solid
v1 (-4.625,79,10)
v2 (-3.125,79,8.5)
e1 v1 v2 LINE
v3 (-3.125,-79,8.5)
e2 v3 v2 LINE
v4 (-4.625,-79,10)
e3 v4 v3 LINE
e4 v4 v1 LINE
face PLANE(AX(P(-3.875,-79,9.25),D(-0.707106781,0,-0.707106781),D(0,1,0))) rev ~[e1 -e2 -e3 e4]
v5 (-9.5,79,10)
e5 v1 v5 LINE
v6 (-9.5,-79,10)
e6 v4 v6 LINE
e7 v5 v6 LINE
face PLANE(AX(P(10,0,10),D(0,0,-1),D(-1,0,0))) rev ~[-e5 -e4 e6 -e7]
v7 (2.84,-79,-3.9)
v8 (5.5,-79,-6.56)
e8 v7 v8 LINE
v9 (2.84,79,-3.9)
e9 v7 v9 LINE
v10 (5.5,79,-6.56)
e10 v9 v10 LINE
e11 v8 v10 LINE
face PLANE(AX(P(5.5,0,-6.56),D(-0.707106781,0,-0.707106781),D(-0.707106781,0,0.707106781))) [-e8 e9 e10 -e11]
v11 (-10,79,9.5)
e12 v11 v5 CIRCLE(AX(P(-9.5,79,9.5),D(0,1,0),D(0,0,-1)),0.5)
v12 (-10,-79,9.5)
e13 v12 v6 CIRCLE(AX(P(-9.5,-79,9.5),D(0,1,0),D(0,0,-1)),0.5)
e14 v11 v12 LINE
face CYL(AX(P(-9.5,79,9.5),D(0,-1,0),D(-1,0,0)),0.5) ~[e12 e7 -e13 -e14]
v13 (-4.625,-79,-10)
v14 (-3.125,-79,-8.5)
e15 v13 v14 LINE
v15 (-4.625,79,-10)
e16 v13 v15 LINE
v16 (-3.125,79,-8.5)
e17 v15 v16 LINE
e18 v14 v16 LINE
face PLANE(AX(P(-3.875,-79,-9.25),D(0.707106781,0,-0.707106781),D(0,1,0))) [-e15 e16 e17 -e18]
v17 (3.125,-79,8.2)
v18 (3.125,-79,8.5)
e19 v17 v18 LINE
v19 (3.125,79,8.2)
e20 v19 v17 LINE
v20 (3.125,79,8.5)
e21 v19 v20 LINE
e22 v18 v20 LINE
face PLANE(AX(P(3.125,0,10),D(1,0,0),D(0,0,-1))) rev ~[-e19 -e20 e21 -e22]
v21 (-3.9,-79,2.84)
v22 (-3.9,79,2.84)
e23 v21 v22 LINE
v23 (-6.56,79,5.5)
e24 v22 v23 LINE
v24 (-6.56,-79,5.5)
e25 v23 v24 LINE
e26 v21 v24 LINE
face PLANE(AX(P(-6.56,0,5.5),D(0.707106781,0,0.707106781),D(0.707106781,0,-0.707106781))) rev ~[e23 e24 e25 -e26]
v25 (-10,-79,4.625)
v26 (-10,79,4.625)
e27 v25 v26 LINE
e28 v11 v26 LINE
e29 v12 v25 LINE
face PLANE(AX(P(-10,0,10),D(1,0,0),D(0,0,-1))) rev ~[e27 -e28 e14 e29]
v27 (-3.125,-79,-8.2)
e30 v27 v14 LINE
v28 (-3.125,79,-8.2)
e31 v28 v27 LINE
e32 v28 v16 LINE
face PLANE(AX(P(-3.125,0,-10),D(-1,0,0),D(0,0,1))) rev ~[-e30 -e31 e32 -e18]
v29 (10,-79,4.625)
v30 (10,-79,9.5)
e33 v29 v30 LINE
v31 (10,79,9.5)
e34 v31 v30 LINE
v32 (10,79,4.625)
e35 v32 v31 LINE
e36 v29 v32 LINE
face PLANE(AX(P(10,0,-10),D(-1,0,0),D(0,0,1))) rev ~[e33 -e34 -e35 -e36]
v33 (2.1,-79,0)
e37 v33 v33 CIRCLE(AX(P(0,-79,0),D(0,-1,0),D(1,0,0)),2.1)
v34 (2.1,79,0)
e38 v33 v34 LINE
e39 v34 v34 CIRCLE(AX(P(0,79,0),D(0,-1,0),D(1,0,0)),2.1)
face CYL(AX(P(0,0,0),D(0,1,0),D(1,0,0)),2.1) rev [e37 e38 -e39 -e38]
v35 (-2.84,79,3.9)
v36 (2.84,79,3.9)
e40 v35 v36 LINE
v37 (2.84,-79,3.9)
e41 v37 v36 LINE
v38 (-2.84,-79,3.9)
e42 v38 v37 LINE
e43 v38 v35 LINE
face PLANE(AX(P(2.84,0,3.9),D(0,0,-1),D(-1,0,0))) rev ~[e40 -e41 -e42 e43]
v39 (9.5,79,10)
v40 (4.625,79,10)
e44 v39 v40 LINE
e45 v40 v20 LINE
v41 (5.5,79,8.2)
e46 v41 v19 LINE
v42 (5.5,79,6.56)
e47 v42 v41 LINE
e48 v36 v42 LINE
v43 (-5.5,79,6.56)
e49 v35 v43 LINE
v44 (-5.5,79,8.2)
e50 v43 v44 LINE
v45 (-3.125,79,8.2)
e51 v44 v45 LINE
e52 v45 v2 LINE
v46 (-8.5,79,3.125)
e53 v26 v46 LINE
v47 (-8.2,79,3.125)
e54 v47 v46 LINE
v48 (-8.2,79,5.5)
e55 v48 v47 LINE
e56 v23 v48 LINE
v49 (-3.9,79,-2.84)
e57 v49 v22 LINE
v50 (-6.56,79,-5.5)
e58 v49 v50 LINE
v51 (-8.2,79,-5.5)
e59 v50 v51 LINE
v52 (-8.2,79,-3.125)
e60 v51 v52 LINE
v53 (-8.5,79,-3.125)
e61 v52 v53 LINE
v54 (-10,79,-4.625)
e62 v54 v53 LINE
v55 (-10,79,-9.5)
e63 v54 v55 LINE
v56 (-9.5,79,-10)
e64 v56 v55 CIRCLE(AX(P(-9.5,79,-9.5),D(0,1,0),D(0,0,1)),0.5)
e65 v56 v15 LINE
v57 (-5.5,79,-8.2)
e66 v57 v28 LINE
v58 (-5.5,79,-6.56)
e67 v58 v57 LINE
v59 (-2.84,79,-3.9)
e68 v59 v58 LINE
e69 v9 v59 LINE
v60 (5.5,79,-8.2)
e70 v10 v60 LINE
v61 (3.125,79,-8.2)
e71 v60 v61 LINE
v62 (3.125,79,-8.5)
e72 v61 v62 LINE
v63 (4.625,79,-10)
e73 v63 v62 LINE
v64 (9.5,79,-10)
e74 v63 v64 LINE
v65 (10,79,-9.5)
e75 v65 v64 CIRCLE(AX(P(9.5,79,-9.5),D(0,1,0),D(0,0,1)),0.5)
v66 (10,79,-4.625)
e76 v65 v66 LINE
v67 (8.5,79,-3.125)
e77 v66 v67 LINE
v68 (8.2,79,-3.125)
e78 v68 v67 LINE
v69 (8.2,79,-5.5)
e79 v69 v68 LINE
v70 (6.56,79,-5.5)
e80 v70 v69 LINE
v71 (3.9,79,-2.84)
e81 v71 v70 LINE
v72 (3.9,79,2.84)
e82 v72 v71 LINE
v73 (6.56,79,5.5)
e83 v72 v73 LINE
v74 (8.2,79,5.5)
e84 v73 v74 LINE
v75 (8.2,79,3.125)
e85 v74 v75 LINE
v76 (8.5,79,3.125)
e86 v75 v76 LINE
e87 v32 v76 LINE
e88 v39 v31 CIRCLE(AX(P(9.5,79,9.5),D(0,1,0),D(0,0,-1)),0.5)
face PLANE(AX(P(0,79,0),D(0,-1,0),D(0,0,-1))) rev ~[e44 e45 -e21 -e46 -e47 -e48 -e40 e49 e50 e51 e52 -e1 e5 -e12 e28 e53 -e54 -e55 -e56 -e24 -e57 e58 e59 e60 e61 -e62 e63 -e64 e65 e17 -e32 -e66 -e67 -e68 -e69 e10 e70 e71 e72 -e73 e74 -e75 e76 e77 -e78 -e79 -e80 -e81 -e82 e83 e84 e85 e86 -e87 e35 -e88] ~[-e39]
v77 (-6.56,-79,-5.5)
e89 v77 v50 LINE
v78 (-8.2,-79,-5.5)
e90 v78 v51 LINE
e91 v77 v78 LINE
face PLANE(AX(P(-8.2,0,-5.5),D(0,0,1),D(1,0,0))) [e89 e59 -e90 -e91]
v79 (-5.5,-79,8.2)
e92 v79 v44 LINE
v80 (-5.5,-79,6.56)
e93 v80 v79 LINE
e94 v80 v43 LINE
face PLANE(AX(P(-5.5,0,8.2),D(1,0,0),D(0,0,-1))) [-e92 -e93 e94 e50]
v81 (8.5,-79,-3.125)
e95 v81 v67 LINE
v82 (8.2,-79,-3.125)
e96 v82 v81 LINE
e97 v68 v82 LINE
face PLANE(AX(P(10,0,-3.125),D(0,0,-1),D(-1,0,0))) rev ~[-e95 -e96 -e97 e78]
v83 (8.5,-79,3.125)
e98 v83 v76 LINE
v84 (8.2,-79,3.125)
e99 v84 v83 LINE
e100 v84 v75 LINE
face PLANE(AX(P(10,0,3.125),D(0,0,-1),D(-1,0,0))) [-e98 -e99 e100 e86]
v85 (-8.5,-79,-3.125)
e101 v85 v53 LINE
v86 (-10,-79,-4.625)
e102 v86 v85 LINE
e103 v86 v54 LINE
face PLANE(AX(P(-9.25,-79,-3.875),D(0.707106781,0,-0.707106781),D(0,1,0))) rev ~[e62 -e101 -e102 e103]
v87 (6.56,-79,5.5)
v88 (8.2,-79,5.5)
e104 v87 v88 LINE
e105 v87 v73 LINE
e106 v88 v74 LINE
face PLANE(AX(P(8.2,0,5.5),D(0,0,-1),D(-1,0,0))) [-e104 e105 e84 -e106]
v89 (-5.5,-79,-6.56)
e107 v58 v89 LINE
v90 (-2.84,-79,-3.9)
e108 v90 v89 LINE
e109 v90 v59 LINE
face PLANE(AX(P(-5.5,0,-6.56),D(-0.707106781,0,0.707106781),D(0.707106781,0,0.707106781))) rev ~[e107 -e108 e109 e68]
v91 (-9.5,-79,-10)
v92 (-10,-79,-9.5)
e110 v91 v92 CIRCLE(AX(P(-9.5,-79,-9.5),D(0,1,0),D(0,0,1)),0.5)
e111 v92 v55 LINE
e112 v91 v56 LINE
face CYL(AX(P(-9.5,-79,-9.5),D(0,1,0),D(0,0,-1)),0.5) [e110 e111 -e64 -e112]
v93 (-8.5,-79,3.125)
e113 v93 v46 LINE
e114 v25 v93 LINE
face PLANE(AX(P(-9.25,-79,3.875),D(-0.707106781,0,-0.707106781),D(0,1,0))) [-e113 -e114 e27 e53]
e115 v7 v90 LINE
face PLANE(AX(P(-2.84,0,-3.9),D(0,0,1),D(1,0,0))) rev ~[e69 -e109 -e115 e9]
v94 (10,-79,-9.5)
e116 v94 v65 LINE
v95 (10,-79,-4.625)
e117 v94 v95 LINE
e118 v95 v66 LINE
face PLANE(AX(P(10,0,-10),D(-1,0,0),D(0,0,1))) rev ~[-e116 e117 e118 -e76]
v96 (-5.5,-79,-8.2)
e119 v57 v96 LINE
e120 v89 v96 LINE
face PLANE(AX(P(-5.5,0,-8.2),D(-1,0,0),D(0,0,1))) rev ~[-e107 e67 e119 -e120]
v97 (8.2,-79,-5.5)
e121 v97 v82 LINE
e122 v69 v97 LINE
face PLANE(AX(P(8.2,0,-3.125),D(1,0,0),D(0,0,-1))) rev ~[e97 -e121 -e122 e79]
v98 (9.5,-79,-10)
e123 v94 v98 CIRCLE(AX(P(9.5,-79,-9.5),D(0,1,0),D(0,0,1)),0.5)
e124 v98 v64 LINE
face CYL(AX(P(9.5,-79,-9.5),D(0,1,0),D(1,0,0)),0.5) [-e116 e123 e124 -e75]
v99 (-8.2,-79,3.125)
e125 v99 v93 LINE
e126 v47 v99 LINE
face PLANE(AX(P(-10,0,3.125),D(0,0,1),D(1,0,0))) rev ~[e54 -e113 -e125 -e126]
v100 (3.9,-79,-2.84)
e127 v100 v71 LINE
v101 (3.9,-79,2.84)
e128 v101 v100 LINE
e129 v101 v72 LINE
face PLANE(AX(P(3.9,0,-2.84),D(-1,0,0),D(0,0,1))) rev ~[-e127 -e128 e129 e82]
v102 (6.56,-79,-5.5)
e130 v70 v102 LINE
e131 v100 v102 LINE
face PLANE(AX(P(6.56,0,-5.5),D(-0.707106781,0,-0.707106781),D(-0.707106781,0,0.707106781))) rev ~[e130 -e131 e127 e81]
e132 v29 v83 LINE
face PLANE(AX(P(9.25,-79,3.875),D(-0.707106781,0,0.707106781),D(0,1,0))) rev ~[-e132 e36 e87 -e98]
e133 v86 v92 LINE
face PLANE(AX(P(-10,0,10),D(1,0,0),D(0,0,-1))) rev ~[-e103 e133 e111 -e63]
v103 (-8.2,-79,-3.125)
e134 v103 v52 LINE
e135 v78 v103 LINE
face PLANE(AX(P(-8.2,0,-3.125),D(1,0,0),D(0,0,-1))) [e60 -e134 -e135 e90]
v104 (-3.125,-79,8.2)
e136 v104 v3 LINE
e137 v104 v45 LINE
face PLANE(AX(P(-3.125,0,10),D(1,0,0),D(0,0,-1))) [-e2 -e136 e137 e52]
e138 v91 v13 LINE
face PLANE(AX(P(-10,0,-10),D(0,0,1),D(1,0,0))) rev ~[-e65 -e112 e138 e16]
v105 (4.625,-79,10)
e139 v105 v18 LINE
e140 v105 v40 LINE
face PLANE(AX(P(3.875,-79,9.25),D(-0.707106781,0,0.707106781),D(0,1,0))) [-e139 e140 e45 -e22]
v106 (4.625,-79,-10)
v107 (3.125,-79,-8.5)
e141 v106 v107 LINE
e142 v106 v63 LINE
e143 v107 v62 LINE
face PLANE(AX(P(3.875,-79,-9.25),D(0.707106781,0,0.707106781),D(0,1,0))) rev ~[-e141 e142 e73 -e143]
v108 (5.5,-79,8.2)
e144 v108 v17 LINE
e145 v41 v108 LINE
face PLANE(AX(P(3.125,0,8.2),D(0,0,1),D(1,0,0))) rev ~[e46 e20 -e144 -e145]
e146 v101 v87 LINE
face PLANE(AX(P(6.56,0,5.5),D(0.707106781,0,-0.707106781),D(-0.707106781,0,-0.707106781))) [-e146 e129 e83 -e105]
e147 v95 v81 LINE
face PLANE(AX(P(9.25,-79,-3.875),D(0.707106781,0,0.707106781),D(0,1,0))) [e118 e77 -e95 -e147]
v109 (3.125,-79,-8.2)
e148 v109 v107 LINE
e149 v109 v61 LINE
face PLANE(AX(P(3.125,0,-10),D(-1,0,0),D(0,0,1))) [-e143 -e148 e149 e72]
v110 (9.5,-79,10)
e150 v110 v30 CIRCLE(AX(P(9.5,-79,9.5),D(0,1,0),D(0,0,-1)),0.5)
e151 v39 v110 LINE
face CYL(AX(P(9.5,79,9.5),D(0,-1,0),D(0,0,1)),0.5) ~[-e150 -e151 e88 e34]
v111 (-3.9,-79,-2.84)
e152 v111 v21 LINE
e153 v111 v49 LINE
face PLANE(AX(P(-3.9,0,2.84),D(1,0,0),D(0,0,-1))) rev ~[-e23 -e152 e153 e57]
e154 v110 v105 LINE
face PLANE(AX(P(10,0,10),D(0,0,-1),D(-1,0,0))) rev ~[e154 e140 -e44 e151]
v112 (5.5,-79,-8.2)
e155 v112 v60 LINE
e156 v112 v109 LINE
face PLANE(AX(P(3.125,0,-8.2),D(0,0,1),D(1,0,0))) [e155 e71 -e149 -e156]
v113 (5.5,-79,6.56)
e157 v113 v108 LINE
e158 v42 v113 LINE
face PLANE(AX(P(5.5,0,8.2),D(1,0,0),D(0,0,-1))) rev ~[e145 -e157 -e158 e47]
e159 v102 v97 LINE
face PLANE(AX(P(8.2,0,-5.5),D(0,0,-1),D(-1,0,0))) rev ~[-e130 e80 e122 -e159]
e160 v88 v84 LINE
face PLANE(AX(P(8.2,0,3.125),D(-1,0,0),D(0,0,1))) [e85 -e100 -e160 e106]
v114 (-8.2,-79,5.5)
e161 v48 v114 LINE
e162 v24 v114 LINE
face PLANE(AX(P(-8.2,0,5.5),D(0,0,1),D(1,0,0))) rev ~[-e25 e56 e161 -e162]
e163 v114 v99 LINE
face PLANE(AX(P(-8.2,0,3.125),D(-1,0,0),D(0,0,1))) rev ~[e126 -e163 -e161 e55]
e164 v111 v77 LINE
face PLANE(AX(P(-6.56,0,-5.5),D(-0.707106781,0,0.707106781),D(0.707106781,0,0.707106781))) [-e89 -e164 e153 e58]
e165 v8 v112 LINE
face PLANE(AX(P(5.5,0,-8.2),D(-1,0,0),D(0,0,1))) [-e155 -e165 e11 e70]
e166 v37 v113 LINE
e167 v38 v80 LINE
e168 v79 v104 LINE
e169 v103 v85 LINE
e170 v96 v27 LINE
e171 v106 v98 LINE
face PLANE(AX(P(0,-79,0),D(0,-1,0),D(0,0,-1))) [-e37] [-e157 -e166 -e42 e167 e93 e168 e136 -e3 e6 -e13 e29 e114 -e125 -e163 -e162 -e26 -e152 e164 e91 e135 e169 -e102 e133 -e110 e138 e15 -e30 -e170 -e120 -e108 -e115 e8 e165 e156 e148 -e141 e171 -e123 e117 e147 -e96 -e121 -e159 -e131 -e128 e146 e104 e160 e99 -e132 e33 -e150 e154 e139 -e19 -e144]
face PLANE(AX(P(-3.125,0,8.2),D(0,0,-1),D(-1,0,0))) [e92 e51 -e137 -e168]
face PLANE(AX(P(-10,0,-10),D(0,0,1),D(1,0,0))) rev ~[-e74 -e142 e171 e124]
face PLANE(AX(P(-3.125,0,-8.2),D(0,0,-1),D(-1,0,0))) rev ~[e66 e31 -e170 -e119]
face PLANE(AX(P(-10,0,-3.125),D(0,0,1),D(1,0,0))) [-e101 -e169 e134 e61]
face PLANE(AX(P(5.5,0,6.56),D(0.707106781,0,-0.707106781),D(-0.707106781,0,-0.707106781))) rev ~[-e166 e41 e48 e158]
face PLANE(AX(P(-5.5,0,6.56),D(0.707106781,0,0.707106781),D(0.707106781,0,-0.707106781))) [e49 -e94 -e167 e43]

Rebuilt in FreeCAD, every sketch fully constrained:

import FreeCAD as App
import Part
import Sketcher
from FreeCAD import Vector


def edges_at(feature, points):
    """Names of the edges that pass closest to the given points."""
    edges = feature.Shape.Edges
    near = lambda p: min(range(len(edges)), key=lambda i: edges[i].distToShape(Part.Vertex(*p))[0])
    return sorted({f"Edge{near(p) + 1}" for p in points})


def add_polygon(sketch, points):
    """Adds a closed chain of lines whose ends are joined by coincident constraints."""
    first, n = sketch.GeometryCount, len(points)
    for a, b in zip(points, points[1:] + points[:1]):
        sketch.addGeometry(Part.LineSegment(App.Vector(*a, 0), App.Vector(*b, 0)), False)
    for i in range(n):
        sketch.addConstraint(Sketcher.Constraint("Coincident", first + i, 2, first + (i + 1) % n, 1))

doc = App.newDocument("Part")
body = doc.addObject("PartDesign::Body", "Body")

# Sketch on XZ plane
sketch1 = doc.addObject("Sketcher::SketchObject", "Sketch")
body.addObject(sketch1)
sketch1.AttachmentSupport = (doc.XZ_Plane, [""])
sketch1.MapMode = "FlatFace"
add_polygon(sketch1, [(-10, -10), (10, -10), (10, 10), (-10, 10)])  # lines 0-3
sketch1.addGeometry(Part.Circle(Vector(0, 0, 0), Vector(0, 0, 1), 2.1), False)  # 4
sketch1.addConstraint(Sketcher.Constraint("Horizontal", 0))
sketch1.addConstraint(Sketcher.Constraint("Vertical", 1))
sketch1.addConstraint(Sketcher.Constraint("Horizontal", 2))
sketch1.addConstraint(Sketcher.Constraint("Vertical", 3))
sketch1.addConstraint(Sketcher.Constraint("Coincident", 4, 3, -1, 1))
sketch1.addConstraint(Sketcher.Constraint("Symmetric", 0, 2, 2, 2, -1, 1))
sketch1.addConstraint(Sketcher.Constraint("Equal", 2, 1))
sketch1.addConstraint(Sketcher.Constraint("Diameter", 4, 4.2))
sketch1.addConstraint(Sketcher.Constraint("DistanceX", 0, 1, 0, 2, 20.0))
pad1 = doc.addObject("PartDesign::Pad", "Pad")
body.addObject(pad1)
pad1.Profile = sketch1
pad1.Length = 158
pad1.Midplane = True

# Sketch on XZ plane
sketch2 = doc.addObject("Sketcher::SketchObject", "Sketch001")
body.addObject(sketch2)
sketch2.AttachmentSupport = (doc.XZ_Plane, [""])
sketch2.MapMode = "FlatFace"
add_polygon(sketch2, [(2.84, 3.9), (5.5, 6.56), (5.5, 8.2), (3.125, 8.2), (3.125, 10), (-3.125, 10), (-3.125, 8.2), (-5.5, 8.2), (-5.5, 6.56), (-2.84, 3.9)])  # lines 0-9
sketch2.addConstraint(Sketcher.Constraint("Vertical", 1))
sketch2.addConstraint(Sketcher.Constraint("Horizontal", 2))
sketch2.addConstraint(Sketcher.Constraint("Vertical", 3))
sketch2.addConstraint(Sketcher.Constraint("Horizontal", 4))
sketch2.addConstraint(Sketcher.Constraint("Vertical", 5))
sketch2.addConstraint(Sketcher.Constraint("Horizontal", 6))
sketch2.addConstraint(Sketcher.Constraint("Vertical", 7))
sketch2.addConstraint(Sketcher.Constraint("Horizontal", 9))
sketch2.addConstraint(Sketcher.Constraint("Symmetric", 2, 2, 5, 2, -2))
sketch2.addConstraint(Sketcher.Constraint("Symmetric", 0, 2, 7, 2, -2))
sketch2.addConstraint(Sketcher.Constraint("Perpendicular", 0, 8))
sketch2.addConstraint(Sketcher.Constraint("Equal", 0, 8))
sketch2.addConstraint(Sketcher.Constraint("DistanceY", 3, 1, 3, 2, 1.8))
sketch2.addConstraint(Sketcher.Constraint("DistanceY", -1, 1, 3, 2, 10.0))
sketch2.addConstraint(Sketcher.Constraint("DistanceX", 6, 2, 1, 2, 11.0))
sketch2.addConstraint(Sketcher.Constraint("DistanceX", 4, 2, 4, 1, 6.25))
sketch2.addConstraint(Sketcher.Constraint("DistanceX", 9, 1, 9, 2, 5.68))
sketch2.addConstraint(Sketcher.Constraint("DistanceY", 1, 1, 1, 2, 1.64))
pocket1 = doc.addObject("PartDesign::Pocket", "Pocket")
body.addObject(pocket1)
pocket1.Profile = sketch2
pocket1.Type = "ThroughAll"
pocket1.Midplane = True
doc.recompute()

chamfer = doc.addObject("PartDesign::Chamfer", "Chamfer")
body.addObject(chamfer)
chamfer.Base = (pocket1, edges_at(pocket1, [(-3.125, 0, 10), (3.125, 0, 10)]))
chamfer.Size = 1.5
doc.recompute()

polarpattern = doc.addObject("PartDesign::PolarPattern", "PolarPattern")
body.addObject(polarpattern)
polarpattern.Originals = [pocket1, chamfer]
polarpattern.Axis = (doc.Y_Axis, [""])
polarpattern.Angle = 360
polarpattern.Occurrences = 4
body.Tip = polarpattern
doc.recompute()

fillet = doc.addObject("PartDesign::Fillet", "Fillet")
body.addObject(fillet)
fillet.Base = (polarpattern, edges_at(polarpattern, [
    (-10, 0, 10),
    (10, 0, 10),
    (10, 0, -10),
    (-10, 0, -10),
]))
fillet.Radius = 0.5

doc.recompute()
